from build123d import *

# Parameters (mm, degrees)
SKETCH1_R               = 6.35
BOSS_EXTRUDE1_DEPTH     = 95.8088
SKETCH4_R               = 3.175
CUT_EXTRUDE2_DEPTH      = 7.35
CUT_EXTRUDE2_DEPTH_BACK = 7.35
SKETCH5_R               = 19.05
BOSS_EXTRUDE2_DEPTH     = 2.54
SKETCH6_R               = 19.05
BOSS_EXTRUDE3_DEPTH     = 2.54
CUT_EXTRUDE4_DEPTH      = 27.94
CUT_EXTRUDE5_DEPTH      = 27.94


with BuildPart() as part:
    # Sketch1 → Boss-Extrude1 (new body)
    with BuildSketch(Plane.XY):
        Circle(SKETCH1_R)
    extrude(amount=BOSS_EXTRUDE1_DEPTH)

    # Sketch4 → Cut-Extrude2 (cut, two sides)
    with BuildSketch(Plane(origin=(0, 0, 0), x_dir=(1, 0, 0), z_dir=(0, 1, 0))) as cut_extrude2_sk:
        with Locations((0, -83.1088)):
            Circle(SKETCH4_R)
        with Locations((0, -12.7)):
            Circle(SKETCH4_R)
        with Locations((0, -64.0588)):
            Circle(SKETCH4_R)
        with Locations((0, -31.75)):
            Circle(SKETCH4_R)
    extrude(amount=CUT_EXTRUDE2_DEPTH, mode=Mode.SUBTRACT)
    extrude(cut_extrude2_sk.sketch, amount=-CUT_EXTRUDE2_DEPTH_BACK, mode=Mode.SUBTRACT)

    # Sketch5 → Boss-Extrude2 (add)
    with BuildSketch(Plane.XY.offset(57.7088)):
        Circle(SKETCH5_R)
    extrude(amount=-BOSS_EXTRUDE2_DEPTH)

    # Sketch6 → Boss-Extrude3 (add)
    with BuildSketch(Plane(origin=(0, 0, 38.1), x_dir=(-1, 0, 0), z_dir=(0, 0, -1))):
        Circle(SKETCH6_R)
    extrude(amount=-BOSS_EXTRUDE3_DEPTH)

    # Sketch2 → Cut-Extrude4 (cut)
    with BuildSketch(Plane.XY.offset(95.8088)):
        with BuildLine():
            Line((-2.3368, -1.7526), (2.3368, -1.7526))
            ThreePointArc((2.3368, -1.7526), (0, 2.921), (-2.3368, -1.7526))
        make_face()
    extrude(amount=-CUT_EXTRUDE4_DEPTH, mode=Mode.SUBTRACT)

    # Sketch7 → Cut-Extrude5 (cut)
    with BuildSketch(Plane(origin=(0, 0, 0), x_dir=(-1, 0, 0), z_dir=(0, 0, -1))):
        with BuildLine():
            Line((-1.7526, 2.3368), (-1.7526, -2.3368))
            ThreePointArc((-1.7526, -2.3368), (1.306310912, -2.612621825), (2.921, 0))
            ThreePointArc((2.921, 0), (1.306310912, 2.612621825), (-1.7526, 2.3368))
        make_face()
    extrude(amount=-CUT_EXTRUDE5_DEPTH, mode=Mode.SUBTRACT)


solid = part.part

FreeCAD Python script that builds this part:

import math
import FreeCAD as App
import Part
import Sketcher
from FreeCAD import Vector
Q = App.Units.Quantity

doc = App.newDocument("Part")
params = doc.addObject("Spreadsheet::Sheet", "Params")
for row, (alias, value) in enumerate([
    ("sketch1_diameter", "0.5 in"),
    ("pad1_length", "3.772 in"),
    ("sketch2_diameter", "0.25 in"),
    ("sketch3_diameter", "1.5 in"),
    ("pad2_length", "0.1 in"),
    ("sketch4_diameter", "1.5 in"),
    ("pad3_length", "0.1 in"),
    ("sketch5_radius", "0.115 in"),
    ("sketch5_width", "0.184 in"),
    ("pocket2_length", "1.1 in"),
    ("sketch6_radius", "0.115 in"),
    ("sketch6_height", "0.184 in"),
    ("pocket3_length", "1.1 in"),
], start=1):
    params.set(f"A{row}", alias)
    params.set(f"B{row}", "=" + value)
    params.setAlias(f"B{row}", alias)

body = doc.addObject("PartDesign::Body", "Body")

# Sketch on XY plane
sketch1 = body.newObject("Sketcher::SketchObject", "Sketch")
sketch1.AttachmentSupport = (doc.getObject("XY_Plane"), [""])
sketch1.MapMode = "FlatFace"
sketch1.addGeometry(Part.Circle(Vector(0, 0, 0), Vector(0, 0, 1), 6), False)
sketch1.addConstraint([
    Sketcher.Constraint("Coincident", 0, 3, -1, 1),
    Sketcher.Constraint("Diameter", 0, Q("0.5 in")),
])
sketch1.setExpression("Constraints[1]", "Params.sketch1_diameter")
pad1 = body.newObject("PartDesign::Pad", "Pad")
pad1.Profile = sketch1
pad1.setExpression("Length", "Params.pad1_length")

# Sketch on XZ plane
sketch2 = body.newObject("Sketcher::SketchObject", "Sketch001")
sketch2.AttachmentSupport = (doc.getObject("XZ_Plane"), [""])
sketch2.MapMode = "FlatFace"
sketch2.addGeometry([
    Part.Circle(Vector(0, 83.1, 0), Vector(0, 0, 1), 3.2),
    Part.Circle(Vector(0, 12.7, 0), Vector(0, 0, 1), 3.2),
    Part.Circle(Vector(0, 64.1, 0), Vector(0, 0, 1), 3.2),
    Part.Circle(Vector(0, 31.8, 0), Vector(0, 0, 1), 3.2),
], False)
sketch2.addConstraint([
    Sketcher.Constraint("Equal", 0, 1),
    Sketcher.Constraint("Equal", 1, 2),
    Sketcher.Constraint("Equal", 2, 3),
    Sketcher.Constraint("PointOnObject", 0, 3, -2),
    Sketcher.Constraint("PointOnObject", 1, 3, -2),
    Sketcher.Constraint("PointOnObject", 2, 3, -2),
    Sketcher.Constraint("PointOnObject", 3, 3, -2),
    Sketcher.Constraint("Diameter", 0, Q("0.25 in")),
    Sketcher.Constraint("DistanceY", -1, 1, 1, 3, Q("0.5 in")),
    Sketcher.Constraint("DistanceY", -1, 1, 3, 3, Q("1.25 in")),
    Sketcher.Constraint("DistanceY", 2, 3, 0, 3, Q("0.75 in")),
    Sketcher.Constraint("DistanceY", -1, 1, 0, 3, Q("3.272 in")),
])
sketch2.setExpression("Constraints[7]", "Params.sketch2_diameter")
pocket1 = body.newObject("PartDesign::Pocket", "Pocket")
pocket1.Profile = sketch2
pocket1.Type = "ThroughAll"
pocket1.Midplane = True

# Sketch on XY plane
sketch3 = body.newObject("Sketcher::SketchObject", "Sketch002")
sketch3.AttachmentSupport = (doc.getObject("XY_Plane"), [""])
sketch3.MapMode = "FlatFace"
sketch3.AttachmentOffset = App.Placement(Vector(0, 0, 2.272 * 25.4), App.Rotation())
sketch3.addGeometry(Part.Circle(Vector(0, 0, 0), Vector(0, 0, 1), 19), False)
sketch3.addConstraint([
    Sketcher.Constraint("Coincident", 0, 3, -1, 1),
    Sketcher.Constraint("Diameter", 0, Q("1.5 in")),
])
sketch3.setExpression("Constraints[1]", "Params.sketch3_diameter")
pad2 = body.newObject("PartDesign::Pad", "Pad001")
pad2.Profile = sketch3
pad2.setExpression("Length", "Params.pad2_length")
pad2.Reversed = True

# Sketch on XY plane
sketch4 = body.newObject("Sketcher::SketchObject", "Sketch003")
sketch4.AttachmentSupport = (doc.getObject("XY_Plane"), [""])
sketch4.MapMode = "FlatFace"
sketch4.AttachmentOffset = App.Placement(Vector(0, 0, 1.5 * 25.4), App.Rotation())
sketch4.addGeometry(Part.Circle(Vector(0, 0, 0), Vector(0, 0, 1), 19), False)
sketch4.addConstraint([
    Sketcher.Constraint("Coincident", 0, 3, -1, 1),
    Sketcher.Constraint("Diameter", 0, Q("1.5 in")),
])
sketch4.setExpression("Constraints[1]", "Params.sketch4_diameter")
pad3 = body.newObject("PartDesign::Pad", "Pad002")
pad3.Profile = sketch4
pad3.setExpression("Length", "Params.pad3_length")

# Sketch on XY plane
sketch5 = body.newObject("Sketcher::SketchObject", "Sketch004")
sketch5.AttachmentSupport = (doc.getObject("XY_Plane"), [""])
sketch5.MapMode = "FlatFace"
sketch5.AttachmentOffset = App.Placement(Vector(0, 0, 3.772 * 25.4), App.Rotation())
sketch5.addGeometry([
    Part.LineSegment(Vector(-2.3, -1.8, 0), Vector(2.3, -1.8, 0)),
    Part.ArcOfCircle(Part.Circle(Vector(0, 0, 0), Vector(0, 0, 1), 2.9), math.radians(-37), math.radians(217)),
], False)
sketch5.addConstraint([
    Sketcher.Constraint("Coincident", 0, 1, 1, 2),
    Sketcher.Constraint("Coincident", 1, 1, 0, 2),
    Sketcher.Constraint("Horizontal", 0),
    Sketcher.Constraint("Coincident", 1, 3, -1, 1),
    Sketcher.Constraint("Radius", 1, Q("0.115 in")),
    Sketcher.Constraint("DistanceX", 0, 1, 0, 2, Q("0.184 in")),
])
sketch5.setExpression("Constraints[4]", "Params.sketch5_radius")
sketch5.setExpression("Constraints[5]", "Params.sketch5_width")
pocket2 = body.newObject("PartDesign::Pocket", "Pocket001")
pocket2.Profile = sketch5
pocket2.setExpression("Length", "Params.pocket2_length")

# Sketch on XY plane
sketch6 = body.newObject("Sketcher::SketchObject", "Sketch005")
sketch6.AttachmentSupport = (doc.getObject("XY_Plane"), [""])
sketch6.MapMode = "FlatFace"
sketch6.addGeometry([
    Part.LineSegment(Vector(1.8, 2.3, 0), Vector(1.8, -2.3, 0)),
    Part.ArcOfCircle(Part.Circle(Vector(0, 0, 0), Vector(0, 0, 1), 2.9), math.radians(180), math.radians(307)),
    Part.ArcOfCircle(Part.Circle(Vector(0, 0, 0), Vector(0, 0, 1), 2.9), math.radians(53), math.radians(180)),
], False)
sketch6.addConstraint([
    Sketcher.Constraint("Coincident", 0, 2, 1, 2),
    Sketcher.Constraint("Tangent", 1, 1, 2, 2),
    Sketcher.Constraint("Coincident", 2, 1, 0, 1),
    Sketcher.Constraint("Vertical", 0),
    Sketcher.Constraint("Coincident", 1, 3, -1, 1),
    Sketcher.Constraint("Equal", 1, 2),
    Sketcher.Constraint("PointOnObject", 1, 1, -1),
    Sketcher.Constraint("Radius", 1, Q("0.115 in")),
    Sketcher.Constraint("DistanceY", 0, 2, 0, 1, Q("0.184 in")),
])
sketch6.setExpression("Constraints[7]", "Params.sketch6_radius")
sketch6.setExpression("Constraints[8]", "Params.sketch6_height")
pocket3 = body.newObject("PartDesign::Pocket", "Pocket002")
pocket3.Profile = sketch6
pocket3.setExpression("Length", "Params.pocket3_length")
pocket3.Reversed = True

doc.recompute()
